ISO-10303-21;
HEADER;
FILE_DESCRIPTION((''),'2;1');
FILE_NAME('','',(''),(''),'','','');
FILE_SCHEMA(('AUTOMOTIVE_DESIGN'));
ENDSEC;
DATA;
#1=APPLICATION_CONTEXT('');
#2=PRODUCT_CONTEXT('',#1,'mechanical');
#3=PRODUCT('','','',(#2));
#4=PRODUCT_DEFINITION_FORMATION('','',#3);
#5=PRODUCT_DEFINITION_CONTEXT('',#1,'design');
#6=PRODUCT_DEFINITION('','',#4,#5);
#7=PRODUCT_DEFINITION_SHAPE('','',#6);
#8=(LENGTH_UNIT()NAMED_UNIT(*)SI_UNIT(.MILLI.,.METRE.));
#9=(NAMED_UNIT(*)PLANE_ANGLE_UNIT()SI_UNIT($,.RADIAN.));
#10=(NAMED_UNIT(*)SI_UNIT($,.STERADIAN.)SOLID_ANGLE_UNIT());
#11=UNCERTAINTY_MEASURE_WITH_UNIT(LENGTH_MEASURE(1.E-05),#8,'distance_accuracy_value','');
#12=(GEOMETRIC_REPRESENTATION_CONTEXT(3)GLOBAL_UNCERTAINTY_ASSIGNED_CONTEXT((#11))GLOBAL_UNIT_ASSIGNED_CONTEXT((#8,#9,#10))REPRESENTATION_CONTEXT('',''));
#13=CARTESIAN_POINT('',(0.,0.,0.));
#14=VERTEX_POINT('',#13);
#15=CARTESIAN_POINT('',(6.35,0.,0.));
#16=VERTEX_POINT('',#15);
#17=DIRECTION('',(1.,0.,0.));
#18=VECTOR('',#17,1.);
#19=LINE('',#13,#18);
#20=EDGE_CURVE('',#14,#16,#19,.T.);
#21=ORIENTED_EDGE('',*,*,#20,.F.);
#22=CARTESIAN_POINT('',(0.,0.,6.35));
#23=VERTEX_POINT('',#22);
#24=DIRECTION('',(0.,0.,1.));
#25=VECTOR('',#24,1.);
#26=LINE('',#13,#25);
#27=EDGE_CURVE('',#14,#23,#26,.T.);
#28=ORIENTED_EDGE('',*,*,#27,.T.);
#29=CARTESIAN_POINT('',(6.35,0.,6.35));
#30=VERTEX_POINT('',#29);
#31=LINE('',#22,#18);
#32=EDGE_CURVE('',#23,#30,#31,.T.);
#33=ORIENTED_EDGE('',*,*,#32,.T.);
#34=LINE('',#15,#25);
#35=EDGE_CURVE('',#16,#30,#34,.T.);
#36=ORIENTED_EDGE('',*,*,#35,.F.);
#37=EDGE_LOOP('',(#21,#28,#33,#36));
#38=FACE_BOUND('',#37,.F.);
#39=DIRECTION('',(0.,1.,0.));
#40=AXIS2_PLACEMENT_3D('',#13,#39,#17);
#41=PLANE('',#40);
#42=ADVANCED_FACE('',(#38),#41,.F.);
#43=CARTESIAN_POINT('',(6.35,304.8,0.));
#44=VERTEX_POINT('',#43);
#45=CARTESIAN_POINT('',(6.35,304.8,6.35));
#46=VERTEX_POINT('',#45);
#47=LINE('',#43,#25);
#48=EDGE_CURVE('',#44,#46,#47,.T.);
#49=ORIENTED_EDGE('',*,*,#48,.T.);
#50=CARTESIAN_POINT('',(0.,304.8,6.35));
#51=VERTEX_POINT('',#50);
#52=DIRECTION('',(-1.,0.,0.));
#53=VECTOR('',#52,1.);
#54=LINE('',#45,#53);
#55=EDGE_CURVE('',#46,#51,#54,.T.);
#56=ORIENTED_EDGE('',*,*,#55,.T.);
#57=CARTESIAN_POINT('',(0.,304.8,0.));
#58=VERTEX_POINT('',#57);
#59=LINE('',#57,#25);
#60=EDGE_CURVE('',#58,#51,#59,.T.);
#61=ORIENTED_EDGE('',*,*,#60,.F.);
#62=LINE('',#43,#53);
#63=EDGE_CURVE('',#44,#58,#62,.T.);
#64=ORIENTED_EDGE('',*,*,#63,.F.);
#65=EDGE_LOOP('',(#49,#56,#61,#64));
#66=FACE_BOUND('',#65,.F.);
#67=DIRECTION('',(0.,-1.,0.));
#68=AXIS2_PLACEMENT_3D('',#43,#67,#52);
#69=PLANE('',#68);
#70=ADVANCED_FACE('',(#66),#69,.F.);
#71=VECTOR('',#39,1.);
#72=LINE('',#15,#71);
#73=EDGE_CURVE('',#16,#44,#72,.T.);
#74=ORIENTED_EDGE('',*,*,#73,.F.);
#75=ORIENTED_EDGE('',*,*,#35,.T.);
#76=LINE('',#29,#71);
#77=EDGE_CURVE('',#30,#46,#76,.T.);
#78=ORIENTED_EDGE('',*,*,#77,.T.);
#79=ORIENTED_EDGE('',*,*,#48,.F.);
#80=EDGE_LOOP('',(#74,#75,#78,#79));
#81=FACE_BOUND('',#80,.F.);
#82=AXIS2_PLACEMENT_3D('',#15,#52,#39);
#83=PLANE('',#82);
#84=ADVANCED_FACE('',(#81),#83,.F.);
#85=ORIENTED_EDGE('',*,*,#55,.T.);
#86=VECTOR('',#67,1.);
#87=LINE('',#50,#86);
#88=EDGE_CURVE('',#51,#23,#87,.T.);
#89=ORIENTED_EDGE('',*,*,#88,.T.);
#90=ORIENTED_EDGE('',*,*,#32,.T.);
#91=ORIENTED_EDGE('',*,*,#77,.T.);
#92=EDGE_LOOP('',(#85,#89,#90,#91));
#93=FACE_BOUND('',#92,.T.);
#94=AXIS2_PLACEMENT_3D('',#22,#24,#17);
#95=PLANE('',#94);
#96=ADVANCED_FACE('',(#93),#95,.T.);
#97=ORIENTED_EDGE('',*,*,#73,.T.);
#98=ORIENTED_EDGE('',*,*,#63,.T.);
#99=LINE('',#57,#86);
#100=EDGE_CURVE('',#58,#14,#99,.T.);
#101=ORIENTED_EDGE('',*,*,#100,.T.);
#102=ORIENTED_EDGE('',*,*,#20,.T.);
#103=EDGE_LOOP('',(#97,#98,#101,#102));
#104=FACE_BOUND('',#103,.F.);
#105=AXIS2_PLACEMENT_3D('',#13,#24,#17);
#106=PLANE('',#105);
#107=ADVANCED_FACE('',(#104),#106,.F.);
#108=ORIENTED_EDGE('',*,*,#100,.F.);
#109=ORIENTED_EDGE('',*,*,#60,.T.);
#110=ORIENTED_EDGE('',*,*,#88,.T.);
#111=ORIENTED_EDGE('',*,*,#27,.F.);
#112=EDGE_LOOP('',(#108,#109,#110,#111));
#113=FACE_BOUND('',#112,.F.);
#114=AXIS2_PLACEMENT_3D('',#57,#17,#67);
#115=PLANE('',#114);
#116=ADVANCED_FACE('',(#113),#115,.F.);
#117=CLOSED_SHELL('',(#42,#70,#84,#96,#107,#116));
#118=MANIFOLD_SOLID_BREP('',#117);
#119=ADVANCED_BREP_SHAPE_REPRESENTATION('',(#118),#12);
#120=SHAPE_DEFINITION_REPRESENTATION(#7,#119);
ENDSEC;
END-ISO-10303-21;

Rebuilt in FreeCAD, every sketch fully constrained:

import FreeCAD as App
import Part
import Sketcher
from FreeCAD import Vector
Q = App.Units.Quantity

doc = App.newDocument("Part")
body = doc.addObject("PartDesign::Body", "Body")

sketch1 = doc.addObject("Sketcher::SketchObject", "Sketch")
body.addObject(sketch1)
sketch1.AttachmentSupport = (doc.XY_Plane, [""])
sketch1.MapMode = "FlatFace"
sketch1.addGeometry([
    Part.LineSegment(Vector(0, 304.8, 0), Vector(0, 0, 0)),
    Part.LineSegment(Vector(0, 0, 0), Vector(6.35, 0, 0)),
    Part.LineSegment(Vector(6.35, 0, 0), Vector(6.35, 304.8, 0)),
    Part.LineSegment(Vector(6.35, 304.8, 0), Vector(0, 304.8, 0)),
], False)
sketch1.addConstraint([
    Sketcher.Constraint("Coincident", 0, 2, 1, 1),
    Sketcher.Constraint("Coincident", 1, 2, 2, 1),
    Sketcher.Constraint("Coincident", 2, 2, 3, 1),
    Sketcher.Constraint("Coincident", 3, 2, 0, 1),
    Sketcher.Constraint("Vertical", 0),
    Sketcher.Constraint("Horizontal", 1),
    Sketcher.Constraint("Vertical", 2),
    Sketcher.Constraint("Horizontal", 3),
    Sketcher.Constraint("Coincident", 0, 2, -1, 1),
    Sketcher.Constraint("DistanceY", 0, 2, 0, 1, Q("12 in")),
    Sketcher.Constraint("DistanceX", 1, 1, 1, 2, Q("0.25 in")),
])
pad1 = doc.addObject("PartDesign::Pad", "Pad")
body.addObject(pad1)
pad1.Profile = sketch1
pad1.Length = Q("0.25 in")

doc.recompute()
